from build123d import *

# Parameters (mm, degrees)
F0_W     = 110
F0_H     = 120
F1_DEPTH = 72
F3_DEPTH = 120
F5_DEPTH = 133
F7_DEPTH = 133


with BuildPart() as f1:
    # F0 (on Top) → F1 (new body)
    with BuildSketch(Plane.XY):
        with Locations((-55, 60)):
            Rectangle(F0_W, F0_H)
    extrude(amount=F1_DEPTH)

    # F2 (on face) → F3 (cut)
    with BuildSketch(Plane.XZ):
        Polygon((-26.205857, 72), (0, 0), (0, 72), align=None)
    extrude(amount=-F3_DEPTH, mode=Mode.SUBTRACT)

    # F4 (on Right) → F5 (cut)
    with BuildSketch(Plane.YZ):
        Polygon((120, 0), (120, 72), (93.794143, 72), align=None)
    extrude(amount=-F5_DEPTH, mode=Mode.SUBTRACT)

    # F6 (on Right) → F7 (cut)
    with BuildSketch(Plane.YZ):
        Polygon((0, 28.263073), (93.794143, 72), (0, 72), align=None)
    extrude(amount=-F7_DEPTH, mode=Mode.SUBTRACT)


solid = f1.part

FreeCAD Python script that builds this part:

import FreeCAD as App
import Part
import Sketcher
from FreeCAD import Vector
Q = App.Units.Quantity


def add_polygon(sketch, points):
    """Adds a closed chain of lines whose ends are joined by coincident constraints."""
    first, n = sketch.GeometryCount, len(points)
    for a, b in zip(points, points[1:] + points[:1]):
        sketch.addGeometry(Part.LineSegment(App.Vector(*a, 0), App.Vector(*b, 0)), False)
    for i in range(n):
        sketch.addConstraint(Sketcher.Constraint("Coincident", first + i, 2, first + (i + 1) % n, 1))

doc = App.newDocument("Part")
body = doc.addObject("PartDesign::Body", "Body")

# Sketch on XY plane
sketch1 = body.newObject("Sketcher::SketchObject", "Sketch")
sketch1.AttachmentSupport = (doc.getObject("XY_Plane"), [""])
sketch1.MapMode = "FlatFace"
add_polygon(sketch1, [(-110, 120), (-110, 0), (0, 0), (0, 120)])  # lines 0-3
sketch1.addConstraint(Sketcher.Constraint("Vertical", 0))
sketch1.addConstraint(Sketcher.Constraint("Horizontal", 1))
sketch1.addConstraint(Sketcher.Constraint("Vertical", 2))
sketch1.addConstraint(Sketcher.Constraint("Horizontal", 3))
sketch1.addConstraint(Sketcher.Constraint("Coincident", 1, 2, -1, 1))
sketch1.addConstraint(Sketcher.Constraint("DistanceX", 1, 1, 1, 2, 110.0))
sketch1.addConstraint(Sketcher.Constraint("DistanceY", 0, 2, 0, 1, 120.0))
pad1 = body.newObject("PartDesign::Pad", "Pad")
pad1.Profile = sketch1
pad1.Length = 72

# Sketch on XZ plane
sketch2 = body.newObject("Sketcher::SketchObject", "Sketch001")
sketch2.AttachmentSupport = (doc.getObject("XZ_Plane"), [""])
sketch2.MapMode = "FlatFace"
add_polygon(sketch2, [(-26, 72), (0, 0), (0, 72)])  # lines 0-2
sketch2.addConstraint(Sketcher.Constraint("Vertical", 1))
sketch2.addConstraint(Sketcher.Constraint("Horizontal", 2))
sketch2.addConstraint(Sketcher.Constraint("Coincident", 0, 2, -1, 1))
sketch2.addConstraint(Sketcher.Constraint("DistanceY", 1, 1, 1, 2, 72.0))
sketch2.addConstraint(Sketcher.Constraint("Angle", 0, Q("-70 deg")))
pocket1 = body.newObject("PartDesign::Pocket", "Pocket")
pocket1.Profile = sketch2
pocket1.Length = 120

# Sketch on YZ plane
sketch3 = body.newObject("Sketcher::SketchObject", "Sketch002")
sketch3.AttachmentSupport = (doc.getObject("YZ_Plane"), [""])
sketch3.MapMode = "FlatFace"
add_polygon(sketch3, [(120, 0), (120, 72), (94, 72)])  # lines 0-2
sketch3.addConstraint(Sketcher.Constraint("Vertical", 0))
sketch3.addConstraint(Sketcher.Constraint("Horizontal", 1))
sketch3.addConstraint(Sketcher.Constraint("PointOnObject", 2, 2, -1))
sketch3.addConstraint(Sketcher.Constraint("DistanceY", 0, 1, 0, 2, 72.0))
sketch3.addConstraint(Sketcher.Constraint("Angle", 2, Q("-70 deg")))
sketch3.addConstraint(Sketcher.Constraint("DistanceX", -1, 1, 0, 2, 120.0))
pocket2 = body.newObject("PartDesign::Pocket", "Pocket001")
pocket2.Profile = sketch3
pocket2.Length = 133

# Sketch on YZ plane
sketch4 = body.newObject("Sketcher::SketchObject", "Sketch003")
sketch4.AttachmentSupport = (doc.getObject("YZ_Plane"), [""])
sketch4.MapMode = "FlatFace"
add_polygon(sketch4, [(0, 28), (94, 72), (0, 72)])  # lines 0-2
sketch4.addConstraint(Sketcher.Constraint("Horizontal", 1))
sketch4.addConstraint(Sketcher.Constraint("Vertical", 2))
sketch4.addConstraint(Sketcher.Constraint("PointOnObject", 1, 2, -2))
sketch4.addConstraint(Sketcher.Constraint("Angle", 0, Q("25 deg")))
sketch4.addConstraint(Sketcher.Constraint("DistanceY", -1, 1, 0, 2, 72.0))
sketch4.addConstraint(Sketcher.Constraint("DistanceX", 1, 2, 1, 1, 93.794143))
pocket3 = body.newObject("PartDesign::Pocket", "Pocket002")
pocket3.Profile = sketch4
pocket3.Length = 133

doc.recompute()
